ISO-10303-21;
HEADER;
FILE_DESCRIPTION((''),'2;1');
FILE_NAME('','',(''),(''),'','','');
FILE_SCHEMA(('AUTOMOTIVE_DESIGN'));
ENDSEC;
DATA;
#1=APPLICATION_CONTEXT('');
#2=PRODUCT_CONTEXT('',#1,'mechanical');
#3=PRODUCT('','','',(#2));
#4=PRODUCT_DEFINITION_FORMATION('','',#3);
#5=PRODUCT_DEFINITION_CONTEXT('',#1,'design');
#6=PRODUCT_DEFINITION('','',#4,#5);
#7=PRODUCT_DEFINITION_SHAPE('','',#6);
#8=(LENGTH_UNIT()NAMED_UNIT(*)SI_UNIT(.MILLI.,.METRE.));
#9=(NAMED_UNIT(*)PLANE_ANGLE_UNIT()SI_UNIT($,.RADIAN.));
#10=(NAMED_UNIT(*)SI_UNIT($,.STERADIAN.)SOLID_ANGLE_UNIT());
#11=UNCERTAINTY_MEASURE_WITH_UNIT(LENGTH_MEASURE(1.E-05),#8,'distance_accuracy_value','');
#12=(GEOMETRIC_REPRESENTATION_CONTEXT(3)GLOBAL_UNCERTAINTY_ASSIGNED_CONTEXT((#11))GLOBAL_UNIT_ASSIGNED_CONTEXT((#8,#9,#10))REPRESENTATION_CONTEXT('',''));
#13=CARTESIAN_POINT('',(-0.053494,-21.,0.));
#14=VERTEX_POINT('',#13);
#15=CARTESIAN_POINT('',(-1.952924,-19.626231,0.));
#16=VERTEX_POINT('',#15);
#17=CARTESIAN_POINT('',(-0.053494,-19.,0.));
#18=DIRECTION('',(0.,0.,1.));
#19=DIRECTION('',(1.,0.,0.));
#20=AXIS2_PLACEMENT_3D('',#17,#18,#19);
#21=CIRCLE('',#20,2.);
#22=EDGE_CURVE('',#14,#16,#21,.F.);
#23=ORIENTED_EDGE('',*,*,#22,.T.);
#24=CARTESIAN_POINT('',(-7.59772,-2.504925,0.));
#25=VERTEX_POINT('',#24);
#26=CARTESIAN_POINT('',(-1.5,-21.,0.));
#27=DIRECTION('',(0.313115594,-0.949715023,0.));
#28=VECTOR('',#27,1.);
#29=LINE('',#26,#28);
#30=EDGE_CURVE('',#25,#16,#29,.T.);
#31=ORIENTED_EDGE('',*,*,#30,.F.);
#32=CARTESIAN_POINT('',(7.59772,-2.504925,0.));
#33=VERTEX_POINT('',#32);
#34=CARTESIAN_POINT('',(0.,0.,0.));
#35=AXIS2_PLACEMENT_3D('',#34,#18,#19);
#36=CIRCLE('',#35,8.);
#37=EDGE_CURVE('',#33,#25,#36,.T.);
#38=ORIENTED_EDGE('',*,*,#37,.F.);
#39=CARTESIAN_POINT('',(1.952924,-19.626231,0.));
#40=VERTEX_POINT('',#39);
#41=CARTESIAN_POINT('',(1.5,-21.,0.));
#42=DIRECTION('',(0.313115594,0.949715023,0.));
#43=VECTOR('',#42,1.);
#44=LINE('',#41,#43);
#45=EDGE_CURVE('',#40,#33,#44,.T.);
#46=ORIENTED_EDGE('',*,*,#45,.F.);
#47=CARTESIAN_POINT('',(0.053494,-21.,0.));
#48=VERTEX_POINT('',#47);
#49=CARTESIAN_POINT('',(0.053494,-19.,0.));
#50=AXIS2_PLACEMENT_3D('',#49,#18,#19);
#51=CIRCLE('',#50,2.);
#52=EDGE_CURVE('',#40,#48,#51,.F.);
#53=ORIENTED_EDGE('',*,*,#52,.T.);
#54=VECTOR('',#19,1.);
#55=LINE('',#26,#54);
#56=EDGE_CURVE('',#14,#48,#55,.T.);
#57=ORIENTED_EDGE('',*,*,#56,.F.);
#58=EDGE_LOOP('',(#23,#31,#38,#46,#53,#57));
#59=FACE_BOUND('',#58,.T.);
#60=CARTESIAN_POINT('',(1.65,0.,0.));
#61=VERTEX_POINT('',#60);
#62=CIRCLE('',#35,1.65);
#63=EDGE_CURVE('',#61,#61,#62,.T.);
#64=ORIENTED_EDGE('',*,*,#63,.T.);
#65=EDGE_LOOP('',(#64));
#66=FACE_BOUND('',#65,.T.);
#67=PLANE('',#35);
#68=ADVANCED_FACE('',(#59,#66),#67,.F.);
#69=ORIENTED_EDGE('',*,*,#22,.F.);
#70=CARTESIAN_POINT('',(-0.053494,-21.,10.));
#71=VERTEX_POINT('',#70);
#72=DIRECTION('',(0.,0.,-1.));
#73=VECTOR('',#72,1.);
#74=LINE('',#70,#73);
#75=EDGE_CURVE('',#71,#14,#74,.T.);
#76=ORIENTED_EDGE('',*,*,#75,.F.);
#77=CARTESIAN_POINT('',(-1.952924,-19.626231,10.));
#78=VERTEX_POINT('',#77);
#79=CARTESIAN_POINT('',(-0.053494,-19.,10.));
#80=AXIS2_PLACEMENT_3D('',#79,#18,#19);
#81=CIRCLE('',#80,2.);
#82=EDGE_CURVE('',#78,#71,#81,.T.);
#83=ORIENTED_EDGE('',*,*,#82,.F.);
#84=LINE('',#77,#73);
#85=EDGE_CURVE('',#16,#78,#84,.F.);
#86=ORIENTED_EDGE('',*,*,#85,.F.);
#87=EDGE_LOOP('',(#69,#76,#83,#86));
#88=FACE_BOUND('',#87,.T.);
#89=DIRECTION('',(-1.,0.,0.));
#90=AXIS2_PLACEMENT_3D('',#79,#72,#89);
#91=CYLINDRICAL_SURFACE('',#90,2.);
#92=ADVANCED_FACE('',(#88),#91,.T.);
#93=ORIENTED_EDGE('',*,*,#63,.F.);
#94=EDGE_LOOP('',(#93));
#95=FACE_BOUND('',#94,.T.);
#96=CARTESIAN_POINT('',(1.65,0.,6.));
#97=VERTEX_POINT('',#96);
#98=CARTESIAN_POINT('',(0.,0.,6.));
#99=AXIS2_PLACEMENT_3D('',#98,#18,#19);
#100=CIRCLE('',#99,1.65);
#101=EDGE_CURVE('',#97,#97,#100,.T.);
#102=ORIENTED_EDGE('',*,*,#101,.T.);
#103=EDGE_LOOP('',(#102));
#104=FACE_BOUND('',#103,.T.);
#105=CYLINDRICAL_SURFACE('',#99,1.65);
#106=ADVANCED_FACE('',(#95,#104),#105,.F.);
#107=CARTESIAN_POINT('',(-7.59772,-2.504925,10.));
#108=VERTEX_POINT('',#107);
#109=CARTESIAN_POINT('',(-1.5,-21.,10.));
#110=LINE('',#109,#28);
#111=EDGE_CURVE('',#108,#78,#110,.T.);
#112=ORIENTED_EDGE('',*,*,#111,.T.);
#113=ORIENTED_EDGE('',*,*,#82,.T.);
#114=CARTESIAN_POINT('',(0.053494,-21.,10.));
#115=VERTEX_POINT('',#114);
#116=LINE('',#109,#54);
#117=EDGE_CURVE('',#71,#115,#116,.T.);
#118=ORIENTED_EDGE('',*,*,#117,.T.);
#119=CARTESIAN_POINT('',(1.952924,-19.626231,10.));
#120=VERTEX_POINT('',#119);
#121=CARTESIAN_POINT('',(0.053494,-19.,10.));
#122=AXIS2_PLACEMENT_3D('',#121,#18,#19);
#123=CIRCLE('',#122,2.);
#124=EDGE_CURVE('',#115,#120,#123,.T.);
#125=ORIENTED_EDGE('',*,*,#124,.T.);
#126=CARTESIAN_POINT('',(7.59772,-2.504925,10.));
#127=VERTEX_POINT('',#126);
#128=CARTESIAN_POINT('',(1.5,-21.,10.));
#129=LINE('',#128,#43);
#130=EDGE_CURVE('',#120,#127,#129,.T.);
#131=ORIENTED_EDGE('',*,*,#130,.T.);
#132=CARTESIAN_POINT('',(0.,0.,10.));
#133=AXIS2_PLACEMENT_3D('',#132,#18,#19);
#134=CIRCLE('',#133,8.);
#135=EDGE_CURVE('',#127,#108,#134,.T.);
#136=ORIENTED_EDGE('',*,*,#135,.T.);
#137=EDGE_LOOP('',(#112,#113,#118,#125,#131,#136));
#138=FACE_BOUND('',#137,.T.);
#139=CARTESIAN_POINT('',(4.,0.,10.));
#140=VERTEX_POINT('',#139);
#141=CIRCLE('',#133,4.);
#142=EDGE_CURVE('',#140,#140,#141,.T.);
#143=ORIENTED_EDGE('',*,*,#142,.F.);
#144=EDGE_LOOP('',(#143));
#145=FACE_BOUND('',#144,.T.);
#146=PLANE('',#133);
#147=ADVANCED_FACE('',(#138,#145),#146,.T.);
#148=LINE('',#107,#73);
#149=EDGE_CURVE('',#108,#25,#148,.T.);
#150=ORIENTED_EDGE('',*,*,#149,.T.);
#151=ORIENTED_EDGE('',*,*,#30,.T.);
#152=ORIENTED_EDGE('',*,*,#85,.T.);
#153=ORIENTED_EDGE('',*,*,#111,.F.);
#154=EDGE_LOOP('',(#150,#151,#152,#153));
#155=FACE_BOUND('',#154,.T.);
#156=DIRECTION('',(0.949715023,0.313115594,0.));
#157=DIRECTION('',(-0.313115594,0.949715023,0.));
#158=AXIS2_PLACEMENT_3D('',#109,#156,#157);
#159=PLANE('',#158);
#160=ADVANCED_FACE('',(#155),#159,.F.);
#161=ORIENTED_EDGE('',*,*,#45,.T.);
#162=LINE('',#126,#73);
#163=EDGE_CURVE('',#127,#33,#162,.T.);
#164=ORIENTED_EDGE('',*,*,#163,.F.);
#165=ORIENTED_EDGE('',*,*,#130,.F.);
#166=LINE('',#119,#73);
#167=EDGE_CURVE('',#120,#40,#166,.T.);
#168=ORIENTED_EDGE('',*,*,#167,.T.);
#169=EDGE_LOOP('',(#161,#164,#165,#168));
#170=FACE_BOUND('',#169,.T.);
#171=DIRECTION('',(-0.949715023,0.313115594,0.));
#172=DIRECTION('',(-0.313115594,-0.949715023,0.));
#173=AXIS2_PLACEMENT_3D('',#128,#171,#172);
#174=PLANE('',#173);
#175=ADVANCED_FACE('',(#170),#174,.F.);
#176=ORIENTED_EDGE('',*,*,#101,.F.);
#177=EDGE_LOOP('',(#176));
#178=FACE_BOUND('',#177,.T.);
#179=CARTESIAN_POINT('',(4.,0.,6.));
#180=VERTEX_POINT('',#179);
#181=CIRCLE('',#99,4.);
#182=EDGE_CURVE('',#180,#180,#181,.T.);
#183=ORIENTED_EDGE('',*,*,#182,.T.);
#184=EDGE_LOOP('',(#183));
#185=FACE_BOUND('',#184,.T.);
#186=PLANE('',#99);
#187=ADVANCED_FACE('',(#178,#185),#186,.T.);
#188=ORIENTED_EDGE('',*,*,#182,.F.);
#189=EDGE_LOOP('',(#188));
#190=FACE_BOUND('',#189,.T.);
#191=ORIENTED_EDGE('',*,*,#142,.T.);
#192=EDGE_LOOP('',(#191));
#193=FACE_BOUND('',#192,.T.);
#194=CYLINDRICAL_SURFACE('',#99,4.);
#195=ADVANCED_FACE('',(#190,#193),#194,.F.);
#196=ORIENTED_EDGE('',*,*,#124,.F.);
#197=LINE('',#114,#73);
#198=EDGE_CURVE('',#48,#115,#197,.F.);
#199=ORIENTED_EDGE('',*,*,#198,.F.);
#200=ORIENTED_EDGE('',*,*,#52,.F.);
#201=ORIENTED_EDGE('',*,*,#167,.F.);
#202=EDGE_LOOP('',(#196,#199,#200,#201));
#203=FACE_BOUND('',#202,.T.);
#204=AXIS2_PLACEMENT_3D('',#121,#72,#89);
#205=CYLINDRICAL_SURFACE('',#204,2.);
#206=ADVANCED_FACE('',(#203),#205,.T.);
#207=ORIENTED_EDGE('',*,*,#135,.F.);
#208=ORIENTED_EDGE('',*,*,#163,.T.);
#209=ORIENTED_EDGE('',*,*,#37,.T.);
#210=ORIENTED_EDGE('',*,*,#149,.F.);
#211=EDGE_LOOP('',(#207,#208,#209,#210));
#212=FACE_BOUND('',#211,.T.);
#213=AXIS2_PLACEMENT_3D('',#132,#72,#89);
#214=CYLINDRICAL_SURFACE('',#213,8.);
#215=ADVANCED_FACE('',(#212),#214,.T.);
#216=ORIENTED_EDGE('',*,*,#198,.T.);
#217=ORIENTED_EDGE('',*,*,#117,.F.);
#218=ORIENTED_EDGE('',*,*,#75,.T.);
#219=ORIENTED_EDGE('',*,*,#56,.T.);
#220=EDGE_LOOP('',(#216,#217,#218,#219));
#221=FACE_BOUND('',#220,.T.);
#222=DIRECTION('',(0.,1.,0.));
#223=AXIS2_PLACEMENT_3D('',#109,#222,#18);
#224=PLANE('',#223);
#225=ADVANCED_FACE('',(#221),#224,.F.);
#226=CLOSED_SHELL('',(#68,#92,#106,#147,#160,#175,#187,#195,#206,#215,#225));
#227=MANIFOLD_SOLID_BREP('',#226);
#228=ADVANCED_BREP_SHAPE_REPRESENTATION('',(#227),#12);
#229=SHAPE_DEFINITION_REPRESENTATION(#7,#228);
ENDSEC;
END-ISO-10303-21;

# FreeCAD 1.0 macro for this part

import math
import FreeCAD as App
import Part
import Sketcher
from FreeCAD import Vector
Q = App.Units.Quantity


def edges_at(feature, points):
    """Names of the edges that pass closest to the given points."""
    edges = feature.Shape.Edges
    near = lambda p: min(range(len(edges)), key=lambda i: edges[i].distToShape(Part.Vertex(*p))[0])
    return sorted({f"Edge{near(p) + 1}" for p in points})

doc = App.newDocument("Part")
body = doc.addObject("PartDesign::Body", "Body")

# Sketch on XY plane
sketch1 = doc.addObject("Sketcher::SketchObject", "Sketch")
body.addObject(sketch1)
sketch1.AttachmentSupport = (doc.XY_Plane, [""])
sketch1.MapMode = "FlatFace"
sketch1.addGeometry(Part.LineSegment(Vector(-7.6, -2.5, 0), Vector(-1.5, -21, 0)), False)
sketch1.addGeometry(Part.LineSegment(Vector(-1.5, -21, 0), Vector(1.5, -21, 0)), False)
sketch1.addGeometry(Part.LineSegment(Vector(1.5, -21, 0), Vector(7.6, -2.5, 0)), False)
sketch1.addGeometry(Part.ArcOfCircle(Part.Circle(Vector(0, 0, 0), Vector(0, 0, 1), 8), math.radians(-18), math.radians(198)), False)
sketch1.addConstraint(Sketcher.Constraint("Coincident", 0, 2, 1, 1))
sketch1.addConstraint(Sketcher.Constraint("Coincident", 1, 2, 2, 1))
sketch1.addConstraint(Sketcher.Constraint("Tangent", 2, 2, 3, 1))
sketch1.addConstraint(Sketcher.Constraint("Tangent", 3, 2, 0, 1))
sketch1.addConstraint(Sketcher.Constraint("Horizontal", 1))
sketch1.addConstraint(Sketcher.Constraint("Coincident", 3, 3, -1, 1))
sketch1.addConstraint(Sketcher.Constraint("Horizontal", 2, 2, 3, 2))
sketch1.addConstraint(Sketcher.Constraint("Radius", 3, Q("8 mm")))
sketch1.addConstraint(Sketcher.Constraint("DistanceX", 1, 1, 1, 2, Q("3 mm")))
sketch1.addConstraint(Sketcher.Constraint("DistanceY", 0, 2, -1, 1, Q("21 mm")))
pad1 = doc.addObject("PartDesign::Pad", "Pad")
body.addObject(pad1)
pad1.Profile = sketch1
pad1.Length = 10
doc.recompute()

fillet = doc.addObject("PartDesign::Fillet", "Fillet")
body.addObject(fillet)
fillet.Base = (pad1, edges_at(pad1, [(-1.5, -21, 5), (1.5, -21, 5)]))
fillet.Radius = 2

# Sketch on XY plane
sketch2 = doc.addObject("Sketcher::SketchObject", "Sketch001")
body.addObject(sketch2)
sketch2.AttachmentSupport = (doc.XY_Plane, [""])
sketch2.MapMode = "FlatFace"
sketch2.AttachmentOffset = App.Placement(Vector(0, 0, 10), App.Rotation())
sketch2.addGeometry(Part.Circle(Vector(0, 0, 0), Vector(0, 0, 1), 4), False)
sketch2.addConstraint(Sketcher.Constraint("Coincident", 0, 3, -1, 1))
sketch2.addConstraint(Sketcher.Constraint("Diameter", 0, Q("8 mm")))
pocket1 = doc.addObject("PartDesign::Pocket", "Pocket")
body.addObject(pocket1)
pocket1.Profile = sketch2
pocket1.Length = 4

# Sketch on XY plane
sketch3 = doc.addObject("Sketcher::SketchObject", "Sketch002")
body.addObject(sketch3)
sketch3.AttachmentSupport = (doc.XY_Plane, [""])
sketch3.MapMode = "FlatFace"
sketch3.AttachmentOffset = App.Placement(Vector(0, 0, 6), App.Rotation())
sketch3.addGeometry(Part.Circle(Vector(0, 0, 0), Vector(0, 0, 1), 1.6), False)
sketch3.addConstraint(Sketcher.Constraint("Coincident", 0, 3, -1, 1))
sketch3.addConstraint(Sketcher.Constraint("Diameter", 0, Q("3.3 mm")))
doc.recompute()
hole = doc.addObject("PartDesign::Hole", "Hole")
body.addObject(hole)
hole.Profile = sketch3
hole.ThreadType = "None"
hole.Diameter = 3.3
hole.DepthType = "ThroughAll"

doc.recompute()
